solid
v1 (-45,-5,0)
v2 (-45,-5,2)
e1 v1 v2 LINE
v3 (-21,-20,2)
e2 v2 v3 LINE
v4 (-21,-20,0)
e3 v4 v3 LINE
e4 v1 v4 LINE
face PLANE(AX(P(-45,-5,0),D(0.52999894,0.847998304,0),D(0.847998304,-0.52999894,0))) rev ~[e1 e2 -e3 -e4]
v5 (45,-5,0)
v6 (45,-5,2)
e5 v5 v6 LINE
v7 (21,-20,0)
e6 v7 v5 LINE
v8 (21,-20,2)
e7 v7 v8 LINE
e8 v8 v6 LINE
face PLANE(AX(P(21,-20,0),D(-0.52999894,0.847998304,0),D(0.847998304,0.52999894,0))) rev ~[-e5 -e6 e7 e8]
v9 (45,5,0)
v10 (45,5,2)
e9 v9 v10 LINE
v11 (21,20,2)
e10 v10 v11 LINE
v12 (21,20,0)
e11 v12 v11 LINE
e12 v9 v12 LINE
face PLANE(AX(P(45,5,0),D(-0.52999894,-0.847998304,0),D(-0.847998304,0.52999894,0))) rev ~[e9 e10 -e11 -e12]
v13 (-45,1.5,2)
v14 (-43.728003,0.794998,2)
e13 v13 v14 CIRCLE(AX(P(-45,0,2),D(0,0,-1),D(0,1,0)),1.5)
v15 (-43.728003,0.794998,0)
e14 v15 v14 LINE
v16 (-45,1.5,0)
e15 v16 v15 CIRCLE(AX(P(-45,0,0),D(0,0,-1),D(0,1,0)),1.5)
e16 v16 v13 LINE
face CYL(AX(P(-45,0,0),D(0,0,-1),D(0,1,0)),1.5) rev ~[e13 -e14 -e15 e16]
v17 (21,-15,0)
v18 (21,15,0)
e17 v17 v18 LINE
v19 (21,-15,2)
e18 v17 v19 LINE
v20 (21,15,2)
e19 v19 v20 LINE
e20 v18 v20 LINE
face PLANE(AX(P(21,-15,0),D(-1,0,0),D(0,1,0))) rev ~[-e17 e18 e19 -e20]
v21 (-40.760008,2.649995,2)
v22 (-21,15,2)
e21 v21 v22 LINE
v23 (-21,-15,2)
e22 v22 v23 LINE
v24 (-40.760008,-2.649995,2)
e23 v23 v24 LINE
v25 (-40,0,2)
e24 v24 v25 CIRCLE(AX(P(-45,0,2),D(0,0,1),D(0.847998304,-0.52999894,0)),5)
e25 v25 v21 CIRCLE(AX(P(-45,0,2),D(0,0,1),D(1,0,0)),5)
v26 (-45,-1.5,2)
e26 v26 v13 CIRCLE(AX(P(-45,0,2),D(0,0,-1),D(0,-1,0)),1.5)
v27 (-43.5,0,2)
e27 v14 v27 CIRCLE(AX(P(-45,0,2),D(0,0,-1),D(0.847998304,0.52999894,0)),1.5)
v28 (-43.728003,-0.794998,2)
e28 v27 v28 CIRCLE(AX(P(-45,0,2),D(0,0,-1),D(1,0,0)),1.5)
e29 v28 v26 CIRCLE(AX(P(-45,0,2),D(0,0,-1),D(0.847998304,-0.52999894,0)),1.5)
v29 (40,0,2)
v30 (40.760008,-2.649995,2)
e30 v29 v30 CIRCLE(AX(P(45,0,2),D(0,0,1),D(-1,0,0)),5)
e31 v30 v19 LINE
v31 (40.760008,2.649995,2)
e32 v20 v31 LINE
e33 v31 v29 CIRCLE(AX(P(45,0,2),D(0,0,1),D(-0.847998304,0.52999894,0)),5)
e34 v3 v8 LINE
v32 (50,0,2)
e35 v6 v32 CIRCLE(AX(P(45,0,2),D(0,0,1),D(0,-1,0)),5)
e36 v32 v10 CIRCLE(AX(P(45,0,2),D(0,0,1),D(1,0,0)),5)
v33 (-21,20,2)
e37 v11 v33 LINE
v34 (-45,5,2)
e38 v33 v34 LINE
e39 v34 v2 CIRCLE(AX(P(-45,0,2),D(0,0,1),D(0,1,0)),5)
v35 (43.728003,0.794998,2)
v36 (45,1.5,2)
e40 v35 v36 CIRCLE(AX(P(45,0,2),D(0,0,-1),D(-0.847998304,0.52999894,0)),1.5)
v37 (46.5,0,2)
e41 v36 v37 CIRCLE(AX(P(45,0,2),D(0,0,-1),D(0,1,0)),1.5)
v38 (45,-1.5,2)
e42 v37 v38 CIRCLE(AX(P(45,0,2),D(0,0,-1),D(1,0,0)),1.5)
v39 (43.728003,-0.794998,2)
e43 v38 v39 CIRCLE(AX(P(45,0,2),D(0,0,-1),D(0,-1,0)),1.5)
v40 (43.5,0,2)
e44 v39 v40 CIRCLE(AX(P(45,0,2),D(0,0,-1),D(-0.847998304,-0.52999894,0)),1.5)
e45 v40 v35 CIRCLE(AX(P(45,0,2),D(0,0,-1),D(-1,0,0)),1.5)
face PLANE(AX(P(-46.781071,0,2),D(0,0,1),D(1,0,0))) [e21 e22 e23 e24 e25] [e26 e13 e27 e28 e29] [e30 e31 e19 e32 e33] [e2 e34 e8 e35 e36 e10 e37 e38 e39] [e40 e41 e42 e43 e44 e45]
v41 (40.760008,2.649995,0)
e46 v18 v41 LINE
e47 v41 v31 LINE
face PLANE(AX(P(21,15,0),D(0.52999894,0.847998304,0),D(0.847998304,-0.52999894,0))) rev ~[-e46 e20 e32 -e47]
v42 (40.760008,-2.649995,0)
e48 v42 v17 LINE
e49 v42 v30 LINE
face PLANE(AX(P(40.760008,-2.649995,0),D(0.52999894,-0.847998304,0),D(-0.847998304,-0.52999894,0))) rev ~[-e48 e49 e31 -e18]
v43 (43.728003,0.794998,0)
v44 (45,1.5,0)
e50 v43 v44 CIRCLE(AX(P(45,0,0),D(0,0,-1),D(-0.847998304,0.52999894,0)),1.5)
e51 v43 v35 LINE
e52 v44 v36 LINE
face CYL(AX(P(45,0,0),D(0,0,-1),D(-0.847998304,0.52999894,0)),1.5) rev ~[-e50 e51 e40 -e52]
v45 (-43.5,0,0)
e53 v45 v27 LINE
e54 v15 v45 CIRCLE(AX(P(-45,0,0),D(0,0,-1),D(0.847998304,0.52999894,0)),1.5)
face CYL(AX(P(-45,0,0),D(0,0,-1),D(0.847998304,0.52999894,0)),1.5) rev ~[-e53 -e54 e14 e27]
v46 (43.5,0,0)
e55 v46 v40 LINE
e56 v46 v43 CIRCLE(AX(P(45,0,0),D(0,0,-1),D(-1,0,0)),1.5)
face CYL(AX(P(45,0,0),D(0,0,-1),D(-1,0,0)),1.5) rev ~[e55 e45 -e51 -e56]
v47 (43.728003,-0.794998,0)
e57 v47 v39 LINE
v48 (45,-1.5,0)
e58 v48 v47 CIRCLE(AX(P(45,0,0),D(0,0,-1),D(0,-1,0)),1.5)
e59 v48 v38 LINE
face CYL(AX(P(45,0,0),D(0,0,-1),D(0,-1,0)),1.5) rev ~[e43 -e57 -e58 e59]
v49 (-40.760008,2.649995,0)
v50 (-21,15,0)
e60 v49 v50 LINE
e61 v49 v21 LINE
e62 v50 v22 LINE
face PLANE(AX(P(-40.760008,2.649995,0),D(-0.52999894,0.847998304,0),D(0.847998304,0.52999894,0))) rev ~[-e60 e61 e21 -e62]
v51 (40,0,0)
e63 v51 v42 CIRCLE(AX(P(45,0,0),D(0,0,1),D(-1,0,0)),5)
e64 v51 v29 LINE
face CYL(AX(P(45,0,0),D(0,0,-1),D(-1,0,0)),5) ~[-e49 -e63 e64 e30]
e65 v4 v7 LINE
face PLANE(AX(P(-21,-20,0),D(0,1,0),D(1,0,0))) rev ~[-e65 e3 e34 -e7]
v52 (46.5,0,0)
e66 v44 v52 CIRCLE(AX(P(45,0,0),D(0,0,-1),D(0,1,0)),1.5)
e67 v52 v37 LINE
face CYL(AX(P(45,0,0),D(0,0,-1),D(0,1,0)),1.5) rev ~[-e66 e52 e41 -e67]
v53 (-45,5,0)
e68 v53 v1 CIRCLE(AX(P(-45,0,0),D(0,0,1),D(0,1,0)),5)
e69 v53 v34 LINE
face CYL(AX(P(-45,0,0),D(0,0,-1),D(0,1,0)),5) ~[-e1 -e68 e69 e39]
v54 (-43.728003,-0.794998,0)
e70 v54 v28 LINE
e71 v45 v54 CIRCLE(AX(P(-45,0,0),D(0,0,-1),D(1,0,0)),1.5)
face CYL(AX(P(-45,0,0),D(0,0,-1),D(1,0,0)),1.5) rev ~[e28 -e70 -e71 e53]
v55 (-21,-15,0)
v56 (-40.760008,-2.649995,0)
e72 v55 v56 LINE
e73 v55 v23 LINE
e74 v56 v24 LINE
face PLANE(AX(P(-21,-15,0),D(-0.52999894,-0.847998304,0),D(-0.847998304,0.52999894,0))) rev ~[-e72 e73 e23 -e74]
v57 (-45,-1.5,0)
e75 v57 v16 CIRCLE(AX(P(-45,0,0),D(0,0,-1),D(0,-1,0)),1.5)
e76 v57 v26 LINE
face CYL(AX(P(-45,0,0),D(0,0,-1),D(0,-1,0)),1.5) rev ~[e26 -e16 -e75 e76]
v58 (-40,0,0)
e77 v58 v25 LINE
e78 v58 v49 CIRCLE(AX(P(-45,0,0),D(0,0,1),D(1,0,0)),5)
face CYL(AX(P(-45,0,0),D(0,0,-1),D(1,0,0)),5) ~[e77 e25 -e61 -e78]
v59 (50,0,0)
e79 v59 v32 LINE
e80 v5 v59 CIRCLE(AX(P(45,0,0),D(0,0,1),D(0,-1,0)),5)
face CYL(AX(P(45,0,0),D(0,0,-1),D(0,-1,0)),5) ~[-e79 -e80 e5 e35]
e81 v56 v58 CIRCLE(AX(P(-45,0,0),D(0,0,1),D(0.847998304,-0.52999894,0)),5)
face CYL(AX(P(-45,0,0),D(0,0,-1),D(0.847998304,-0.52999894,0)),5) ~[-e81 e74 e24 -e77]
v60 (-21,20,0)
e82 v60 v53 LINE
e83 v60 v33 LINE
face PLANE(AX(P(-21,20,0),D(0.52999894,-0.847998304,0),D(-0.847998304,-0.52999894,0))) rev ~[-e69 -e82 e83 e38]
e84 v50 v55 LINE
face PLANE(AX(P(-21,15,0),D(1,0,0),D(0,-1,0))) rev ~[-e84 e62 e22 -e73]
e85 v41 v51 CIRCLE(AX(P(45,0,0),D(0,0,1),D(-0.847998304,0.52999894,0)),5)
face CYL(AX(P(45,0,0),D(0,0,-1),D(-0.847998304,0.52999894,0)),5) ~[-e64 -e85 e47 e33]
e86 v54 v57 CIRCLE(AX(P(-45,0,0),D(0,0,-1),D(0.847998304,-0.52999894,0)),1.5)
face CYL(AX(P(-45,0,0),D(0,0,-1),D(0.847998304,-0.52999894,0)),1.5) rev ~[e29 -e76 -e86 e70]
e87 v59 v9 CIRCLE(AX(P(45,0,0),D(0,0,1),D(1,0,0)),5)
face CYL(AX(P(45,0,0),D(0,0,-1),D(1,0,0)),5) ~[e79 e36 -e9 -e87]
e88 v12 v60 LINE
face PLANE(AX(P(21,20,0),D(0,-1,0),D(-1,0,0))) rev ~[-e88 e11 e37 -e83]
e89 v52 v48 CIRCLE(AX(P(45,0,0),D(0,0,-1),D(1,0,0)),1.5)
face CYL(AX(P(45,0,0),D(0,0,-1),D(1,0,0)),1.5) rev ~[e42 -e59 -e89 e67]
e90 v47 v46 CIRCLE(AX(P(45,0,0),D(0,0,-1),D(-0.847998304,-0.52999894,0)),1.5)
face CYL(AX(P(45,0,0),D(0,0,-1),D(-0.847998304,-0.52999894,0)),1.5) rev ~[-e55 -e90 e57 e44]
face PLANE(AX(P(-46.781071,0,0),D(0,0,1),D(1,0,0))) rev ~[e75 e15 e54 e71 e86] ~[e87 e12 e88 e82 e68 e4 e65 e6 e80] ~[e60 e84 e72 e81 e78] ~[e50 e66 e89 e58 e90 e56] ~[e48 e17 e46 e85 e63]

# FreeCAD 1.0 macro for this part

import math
import FreeCAD as App
import Part
import Sketcher
from FreeCAD import Vector

doc = App.newDocument("Part")
body = doc.addObject("PartDesign::Body", "Body")

# Sketch on XY plane
sketch1 = body.newObject("Sketcher::SketchObject", "Sketch")
sketch1.AttachmentSupport = (doc.getObject("XY_Plane"), [""])
sketch1.MapMode = "FlatFace"
sketch1.addGeometry([
    Part.LineSegment(Vector(21, -20, 0), Vector(45, -5, 0)),  # 0
    Part.ArcOfCircle(Part.Circle(Vector(45, 0, 0), Vector(0, 0, 1), 5), math.radians(-90), math.radians(0)),  # 1
    Part.ArcOfCircle(Part.Circle(Vector(45, 0, 0), Vector(0, 0, 1), 5), math.radians(0), math.radians(90)),  # 2
    Part.LineSegment(Vector(45, 5, 0), Vector(21, 20, 0)),  # 3
    Part.LineSegment(Vector(21, 20, 0), Vector(-21, 20, 0)),  # 4
    Part.LineSegment(Vector(-21, 20, 0), Vector(-45, 5, 0)),  # 5
    Part.ArcOfCircle(Part.Circle(Vector(-45, 0, 0), Vector(0, 0, 1), 5), math.radians(90), math.radians(270)),  # 6
    Part.LineSegment(Vector(-45, -5, 0), Vector(-21, -20, 0)),  # 7
    Part.LineSegment(Vector(-21, -20, 0), Vector(21, -20, 0)),  # 8
    Part.ArcOfCircle(Part.Circle(Vector(-45, 0, 0), Vector(0, 0, 1), 1.5), math.radians(90), math.radians(270)),  # 9
    Part.ArcOfCircle(Part.Circle(Vector(-45, 0, 0), Vector(0, 0, 1), 1.5), math.radians(32), math.radians(90)),  # 10
    Part.ArcOfCircle(Part.Circle(Vector(-45, 0, 0), Vector(0, 0, 1), 1.5), math.radians(0), math.radians(32)),  # 11
    Part.ArcOfCircle(Part.Circle(Vector(-45, 0, 0), Vector(0, 0, 1), 1.5), math.radians(-32), math.radians(0)),  # 12
    Part.ArcOfCircle(Part.Circle(Vector(-45, 0, 0), Vector(0, 0, 1), 1.5), math.radians(-90), math.radians(-32)),  # 13
    Part.ArcOfCircle(Part.Circle(Vector(-45, 0, 0), Vector(0, 0, 1), 5), math.radians(0), math.radians(32)),  # 14
    Part.LineSegment(Vector(-40.8, 2.6, 0), Vector(-21, 15, 0)),  # 15
    Part.LineSegment(Vector(-21, 15, 0), Vector(-21, -15, 0)),  # 16
    Part.LineSegment(Vector(-21, -15, 0), Vector(-40.8, -2.6, 0)),  # 17
    Part.ArcOfCircle(Part.Circle(Vector(-45, 0, 0), Vector(0, 0, 1), 5), math.radians(-32), math.radians(0)),  # 18
    Part.LineSegment(Vector(21, 15, 0), Vector(40.8, 2.6, 0)),  # 19
    Part.ArcOfCircle(Part.Circle(Vector(45, 0, 0), Vector(0, 0, 1), 5), math.radians(148), math.radians(180)),  # 20
    Part.ArcOfCircle(Part.Circle(Vector(45, 0, 0), Vector(0, 0, 1), 5), math.radians(180), math.radians(212)),  # 21
    Part.LineSegment(Vector(40.8, -2.6, 0), Vector(21, -15, 0)),  # 22
    Part.LineSegment(Vector(21, -15, 0), Vector(21, 15, 0)),  # 23
    Part.ArcOfCircle(Part.Circle(Vector(45, 0, 0), Vector(0, 0, 1), 1.5), math.radians(148), math.radians(180)),  # 24
    Part.ArcOfCircle(Part.Circle(Vector(45, 0, 0), Vector(0, 0, 1), 1.5), math.radians(90), math.radians(148)),  # 25
    Part.ArcOfCircle(Part.Circle(Vector(45, 0, 0), Vector(0, 0, 1), 1.5), math.radians(0), math.radians(90)),  # 26
    Part.ArcOfCircle(Part.Circle(Vector(45, 0, 0), Vector(0, 0, 1), 1.5), math.radians(-90), math.radians(0)),  # 27
    Part.ArcOfCircle(Part.Circle(Vector(45, 0, 0), Vector(0, 0, 1), 1.5), math.radians(-148), math.radians(-90)),  # 28
    Part.ArcOfCircle(Part.Circle(Vector(45, 0, 0), Vector(0, 0, 1), 1.5), math.radians(180), math.radians(212)),  # 29
], False)
sketch1.addConstraint([
    Sketcher.Constraint("Coincident", 0, 2, 1, 1),
    Sketcher.Constraint("Tangent", 1, 2, 2, 1),
    Sketcher.Constraint("Coincident", 2, 2, 3, 1),
    Sketcher.Constraint("Coincident", 3, 2, 4, 1),
    Sketcher.Constraint("Coincident", 4, 2, 5, 1),
    Sketcher.Constraint("Coincident", 5, 2, 6, 1),
    Sketcher.Constraint("Coincident", 6, 2, 7, 1),
    Sketcher.Constraint("Coincident", 7, 2, 8, 1),
    Sketcher.Constraint("Coincident", 8, 2, 0, 1),
    Sketcher.Constraint("Tangent", 9, 1, 10, 2),
    Sketcher.Constraint("Tangent", 10, 1, 11, 2),
    Sketcher.Constraint("Tangent", 11, 1, 12, 2),
    Sketcher.Constraint("Tangent", 12, 1, 13, 2),
    Sketcher.Constraint("Tangent", 13, 1, 9, 2),
    Sketcher.Constraint("Coincident", 14, 2, 15, 1),
    Sketcher.Constraint("Coincident", 15, 2, 16, 1),
    Sketcher.Constraint("Coincident", 16, 2, 17, 1),
    Sketcher.Constraint("Coincident", 17, 2, 18, 1),
    Sketcher.Constraint("Tangent", 18, 2, 14, 1),
    Sketcher.Constraint("Coincident", 19, 2, 20, 1),
    Sketcher.Constraint("Tangent", 20, 2, 21, 1),
    Sketcher.Constraint("Coincident", 21, 2, 22, 1),
    Sketcher.Constraint("Coincident", 22, 2, 23, 1),
    Sketcher.Constraint("Coincident", 23, 2, 19, 1),
    Sketcher.Constraint("Tangent", 24, 1, 25, 2),
    Sketcher.Constraint("Tangent", 25, 1, 26, 2),
    Sketcher.Constraint("Tangent", 26, 1, 27, 2),
    Sketcher.Constraint("Tangent", 27, 1, 28, 2),
    Sketcher.Constraint("Tangent", 28, 1, 29, 2),
    Sketcher.Constraint("Tangent", 29, 1, 24, 2),
    Sketcher.Constraint("Horizontal", 4),
    Sketcher.Constraint("Horizontal", 8),
    Sketcher.Constraint("Vertical", 16),
    Sketcher.Constraint("Vertical", 23),
    Sketcher.Constraint("Coincident", 9, 3, 6, 3),
    Sketcher.Constraint("Coincident", 11, 3, 6, 3),
    Sketcher.Constraint("Coincident", 14, 3, 6, 3),
    Sketcher.Constraint("Coincident", 20, 3, 1, 3),
    Sketcher.Constraint("Coincident", 24, 3, 1, 3),
    Sketcher.Constraint("Coincident", 26, 3, 1, 3),
    Sketcher.Constraint("Equal", 1, 2),
    Sketcher.Constraint("Equal", 2, 6),
    Sketcher.Constraint("Equal", 6, 14),
    Sketcher.Constraint("Equal", 14, 18),
    Sketcher.Constraint("Equal", 18, 20),
    Sketcher.Constraint("Equal", 20, 21),
    Sketcher.Constraint("Equal", 13, 24),
    Sketcher.Constraint("Equal", 26, 27),
    Sketcher.Constraint("Symmetric", 1, 3, 6, 3, -1, 1),
    Sketcher.Constraint("Symmetric", 3, 2, 7, 2, -1, 1),
    Sketcher.Constraint("Symmetric", 15, 2, 22, 2, -1, 1),
    Sketcher.Constraint("Symmetric", 2, 2, 5, 2, -2),
    Sketcher.Constraint("PointOnObject", 1, 2, -1),
    Sketcher.Constraint("PointOnObject", 11, 1, -1),
    Sketcher.Constraint("PointOnObject", 18, 2, -1),
    Sketcher.Constraint("PointOnObject", 20, 2, -1),
    Sketcher.Constraint("PointOnObject", 26, 1, -1),
    Sketcher.Constraint("PointOnObject", 29, 1, -1),
    Sketcher.Constraint("Parallel", 0, 5),
    Sketcher.Constraint("Parallel", 3, 7),
    Sketcher.Constraint("Parallel", 5, 15),
    Sketcher.Constraint("Parallel", 7, 17),
    Sketcher.Constraint("Parallel", 17, 19),
    Sketcher.Constraint("Parallel", 15, 22),
    Sketcher.Constraint("Horizontal", 14, 2, 19, 2),
    Sketcher.Constraint("Horizontal", 17, 2, 21, 2),
    Sketcher.Constraint("Horizontal", 16, 2, 22, 2),
    Sketcher.Constraint("Horizontal", 10, 1, 24, 1),
    Sketcher.Constraint("Horizontal", 12, 1, 28, 1),
    Sketcher.Constraint("Vertical", 29, 3, 0, 2),
    Sketcher.Constraint("Vertical", 0, 2, 2, 2),
    Sketcher.Constraint("Vertical", 6, 2, 9, 1),
    Sketcher.Constraint("Vertical", 10, 1, 12, 1),
    Sketcher.Constraint("Vertical", 9, 1, 13, 1),
    Sketcher.Constraint("Vertical", 7, 2, 15, 2),
    Sketcher.Constraint("Vertical", 2, 2, 25, 1),
    Sketcher.Constraint("Vertical", 25, 1, 27, 1),
    Sketcher.Constraint("Radius", 1, 5.0),
    Sketcher.Constraint("Radius", 9, 1.5),
    Sketcher.Constraint("DistanceX", 4, 2, 4, 1, 42.0),
    Sketcher.Constraint("DistanceY", 16, 2, 16, 1, 30.0),
    Sketcher.Constraint("DistanceX", -1, 1, 1, 3, 45.0),
    Sketcher.Constraint("DistanceY", -1, 1, 3, 2, 20.0),
    Sketcher.Constraint("DistanceY", -1, 1, 10, 1, 0.794998),
])
pad1 = body.newObject("PartDesign::Pad", "Pad")
pad1.Profile = sketch1
pad1.Length = 2

doc.recompute()
